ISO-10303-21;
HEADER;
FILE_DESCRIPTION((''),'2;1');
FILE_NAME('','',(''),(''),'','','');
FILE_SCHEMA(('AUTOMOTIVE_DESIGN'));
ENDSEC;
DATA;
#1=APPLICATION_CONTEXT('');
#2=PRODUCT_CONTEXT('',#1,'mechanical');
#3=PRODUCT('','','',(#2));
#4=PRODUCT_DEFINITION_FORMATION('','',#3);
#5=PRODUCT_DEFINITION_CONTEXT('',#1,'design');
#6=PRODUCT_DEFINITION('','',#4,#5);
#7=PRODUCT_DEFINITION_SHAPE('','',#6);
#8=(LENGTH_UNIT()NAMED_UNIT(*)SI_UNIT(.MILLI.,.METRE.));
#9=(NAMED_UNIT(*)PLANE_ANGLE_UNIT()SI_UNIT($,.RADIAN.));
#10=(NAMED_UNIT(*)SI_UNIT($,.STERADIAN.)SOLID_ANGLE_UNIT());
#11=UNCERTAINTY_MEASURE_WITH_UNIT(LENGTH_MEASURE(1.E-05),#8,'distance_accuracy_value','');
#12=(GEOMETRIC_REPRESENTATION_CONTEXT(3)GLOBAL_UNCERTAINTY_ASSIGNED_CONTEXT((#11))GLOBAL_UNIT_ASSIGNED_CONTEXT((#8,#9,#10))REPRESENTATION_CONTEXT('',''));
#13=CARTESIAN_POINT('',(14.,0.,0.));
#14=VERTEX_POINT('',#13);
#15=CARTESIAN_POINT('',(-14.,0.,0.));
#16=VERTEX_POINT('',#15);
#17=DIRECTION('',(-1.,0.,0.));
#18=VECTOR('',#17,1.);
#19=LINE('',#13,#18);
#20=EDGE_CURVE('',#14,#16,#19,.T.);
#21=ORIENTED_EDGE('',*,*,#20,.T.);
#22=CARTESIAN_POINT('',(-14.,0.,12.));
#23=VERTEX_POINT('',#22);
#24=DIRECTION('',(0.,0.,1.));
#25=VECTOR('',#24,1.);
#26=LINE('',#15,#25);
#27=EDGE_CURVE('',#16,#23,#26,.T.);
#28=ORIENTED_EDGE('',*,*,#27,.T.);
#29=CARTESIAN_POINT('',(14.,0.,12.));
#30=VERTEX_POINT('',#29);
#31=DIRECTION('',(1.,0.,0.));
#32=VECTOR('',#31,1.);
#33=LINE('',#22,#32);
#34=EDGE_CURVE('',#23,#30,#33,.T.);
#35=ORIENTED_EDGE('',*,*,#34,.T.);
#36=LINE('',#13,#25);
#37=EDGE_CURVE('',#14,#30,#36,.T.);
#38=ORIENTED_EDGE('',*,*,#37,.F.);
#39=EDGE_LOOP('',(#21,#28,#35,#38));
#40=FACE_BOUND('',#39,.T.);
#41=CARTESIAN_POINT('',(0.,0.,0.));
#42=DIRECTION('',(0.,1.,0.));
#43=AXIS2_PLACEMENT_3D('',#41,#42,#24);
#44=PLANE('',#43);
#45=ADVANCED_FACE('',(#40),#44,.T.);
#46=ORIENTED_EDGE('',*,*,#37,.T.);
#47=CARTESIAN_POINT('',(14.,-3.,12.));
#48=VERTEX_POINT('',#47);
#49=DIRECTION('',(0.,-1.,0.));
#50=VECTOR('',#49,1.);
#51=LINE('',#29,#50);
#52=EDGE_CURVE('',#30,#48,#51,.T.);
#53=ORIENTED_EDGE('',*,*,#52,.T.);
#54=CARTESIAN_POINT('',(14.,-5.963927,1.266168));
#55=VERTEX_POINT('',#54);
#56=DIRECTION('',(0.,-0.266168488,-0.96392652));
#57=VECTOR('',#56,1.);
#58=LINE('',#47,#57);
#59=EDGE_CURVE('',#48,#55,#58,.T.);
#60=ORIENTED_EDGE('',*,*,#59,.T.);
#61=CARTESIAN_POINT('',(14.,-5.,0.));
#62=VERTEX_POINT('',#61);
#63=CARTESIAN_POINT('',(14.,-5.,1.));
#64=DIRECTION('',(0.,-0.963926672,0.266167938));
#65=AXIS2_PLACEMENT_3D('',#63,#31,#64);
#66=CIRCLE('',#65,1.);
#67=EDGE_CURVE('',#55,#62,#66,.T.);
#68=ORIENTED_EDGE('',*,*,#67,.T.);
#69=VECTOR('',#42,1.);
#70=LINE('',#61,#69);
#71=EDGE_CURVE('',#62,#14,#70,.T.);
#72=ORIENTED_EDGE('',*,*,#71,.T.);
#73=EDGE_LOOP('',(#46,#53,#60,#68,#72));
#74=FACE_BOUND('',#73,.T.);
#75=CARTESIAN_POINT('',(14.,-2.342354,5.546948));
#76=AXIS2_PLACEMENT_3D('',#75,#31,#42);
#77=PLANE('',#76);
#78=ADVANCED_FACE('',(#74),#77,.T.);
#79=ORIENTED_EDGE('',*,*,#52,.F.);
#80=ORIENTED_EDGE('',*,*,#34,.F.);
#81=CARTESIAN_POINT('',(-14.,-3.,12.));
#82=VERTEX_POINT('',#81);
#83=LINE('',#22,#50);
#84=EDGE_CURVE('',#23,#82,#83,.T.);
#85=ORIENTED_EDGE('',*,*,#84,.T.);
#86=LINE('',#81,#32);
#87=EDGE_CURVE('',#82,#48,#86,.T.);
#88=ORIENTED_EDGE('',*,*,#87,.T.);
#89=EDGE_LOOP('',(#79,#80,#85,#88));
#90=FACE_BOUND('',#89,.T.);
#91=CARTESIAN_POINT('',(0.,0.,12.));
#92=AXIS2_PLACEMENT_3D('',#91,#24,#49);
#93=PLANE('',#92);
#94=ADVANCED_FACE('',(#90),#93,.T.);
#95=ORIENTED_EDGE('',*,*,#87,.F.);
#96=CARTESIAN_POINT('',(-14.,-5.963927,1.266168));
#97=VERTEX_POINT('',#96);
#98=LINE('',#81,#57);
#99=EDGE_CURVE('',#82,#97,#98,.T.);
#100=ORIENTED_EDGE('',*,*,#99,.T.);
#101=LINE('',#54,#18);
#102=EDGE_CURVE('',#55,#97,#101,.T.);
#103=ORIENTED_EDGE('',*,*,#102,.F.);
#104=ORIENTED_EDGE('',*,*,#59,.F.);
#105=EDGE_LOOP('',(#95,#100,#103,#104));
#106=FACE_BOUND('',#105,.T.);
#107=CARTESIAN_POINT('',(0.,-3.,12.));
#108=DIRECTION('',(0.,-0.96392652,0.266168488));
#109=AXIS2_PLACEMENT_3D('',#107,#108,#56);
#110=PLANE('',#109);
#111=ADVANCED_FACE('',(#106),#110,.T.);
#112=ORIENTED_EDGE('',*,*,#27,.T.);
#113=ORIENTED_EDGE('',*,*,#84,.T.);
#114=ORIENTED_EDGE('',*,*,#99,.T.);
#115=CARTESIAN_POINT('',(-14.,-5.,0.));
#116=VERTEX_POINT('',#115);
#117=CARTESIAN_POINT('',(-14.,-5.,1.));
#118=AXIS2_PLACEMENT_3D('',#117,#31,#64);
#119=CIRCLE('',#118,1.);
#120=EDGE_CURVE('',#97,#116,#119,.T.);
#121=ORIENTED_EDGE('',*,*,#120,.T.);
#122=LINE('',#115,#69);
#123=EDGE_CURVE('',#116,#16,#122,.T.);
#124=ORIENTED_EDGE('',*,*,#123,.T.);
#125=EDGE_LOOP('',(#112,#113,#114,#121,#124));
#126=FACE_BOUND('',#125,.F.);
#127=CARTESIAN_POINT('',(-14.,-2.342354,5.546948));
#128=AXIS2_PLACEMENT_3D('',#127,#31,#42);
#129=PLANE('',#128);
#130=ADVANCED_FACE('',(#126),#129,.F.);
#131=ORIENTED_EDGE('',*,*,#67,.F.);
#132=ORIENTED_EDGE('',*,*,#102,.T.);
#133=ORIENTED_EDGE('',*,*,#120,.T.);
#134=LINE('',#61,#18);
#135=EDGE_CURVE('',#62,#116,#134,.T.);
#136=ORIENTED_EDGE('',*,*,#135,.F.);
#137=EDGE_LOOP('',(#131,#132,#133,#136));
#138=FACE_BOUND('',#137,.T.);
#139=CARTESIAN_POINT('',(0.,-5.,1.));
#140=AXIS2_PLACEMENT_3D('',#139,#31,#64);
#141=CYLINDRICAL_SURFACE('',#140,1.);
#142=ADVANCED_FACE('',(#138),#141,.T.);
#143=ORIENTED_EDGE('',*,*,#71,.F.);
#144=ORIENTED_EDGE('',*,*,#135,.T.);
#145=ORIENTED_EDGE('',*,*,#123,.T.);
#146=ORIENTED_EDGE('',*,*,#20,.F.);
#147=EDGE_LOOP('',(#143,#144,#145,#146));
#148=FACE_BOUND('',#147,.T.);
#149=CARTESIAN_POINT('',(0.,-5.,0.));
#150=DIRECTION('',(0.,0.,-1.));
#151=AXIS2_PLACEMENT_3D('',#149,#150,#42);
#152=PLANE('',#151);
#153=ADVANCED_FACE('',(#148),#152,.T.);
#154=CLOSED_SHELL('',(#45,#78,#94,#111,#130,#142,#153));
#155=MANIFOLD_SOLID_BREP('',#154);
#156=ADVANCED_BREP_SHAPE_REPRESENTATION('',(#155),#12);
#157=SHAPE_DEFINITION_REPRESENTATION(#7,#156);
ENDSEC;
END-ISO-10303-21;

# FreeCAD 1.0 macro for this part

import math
import FreeCAD as App
import Part
import Sketcher
from FreeCAD import Vector
Q = App.Units.Quantity

doc = App.newDocument("Part")
body = doc.addObject("PartDesign::Body", "Body")

# Sketch on YZ plane
sketch1 = doc.addObject("Sketcher::SketchObject", "Sketch")
body.addObject(sketch1)
sketch1.AttachmentSupport = (doc.YZ_Plane, [""])
sketch1.MapMode = "FlatFace"
sketch1.addGeometry([
    Part.LineSegment(Vector(0, 0, 0), Vector(0, 12, 0)),  # 0
    Part.LineSegment(Vector(0, 12, 0), Vector(-3, 12, 0)),  # 1
    Part.LineSegment(Vector(-3, 12, 0), Vector(-6, 1.3, 0)),  # 2
    Part.ArcOfCircle(Part.Circle(Vector(-5, 1, 0), Vector(0, 0, 1), 1), math.radians(165), math.radians(270)),  # 3
    Part.LineSegment(Vector(-5, 0, 0), Vector(0, 0, 0)),  # 4
], False)
sketch1.addConstraint([
    Sketcher.Constraint("Coincident", 0, 2, 1, 1),
    Sketcher.Constraint("Coincident", 1, 2, 2, 1),
    Sketcher.Constraint("Tangent", 2, 2, 3, 1),
    Sketcher.Constraint("Tangent", 3, 2, 4, 1),
    Sketcher.Constraint("Coincident", 4, 2, 0, 1),
    Sketcher.Constraint("Vertical", 0),
    Sketcher.Constraint("Horizontal", 1),
    Sketcher.Constraint("Horizontal", 4),
    Sketcher.Constraint("Coincident", 4, 2, -1, 1),
    Sketcher.Constraint("Radius", 3, Q("1 mm")),
    Sketcher.Constraint("DistanceX", 1, 2, 1, 1, Q("3 mm")),
    Sketcher.Constraint("DistanceX", 4, 1, 4, 2, Q("5 mm")),
    Sketcher.Constraint("DistanceY", 0, 1, 0, 2, Q("12 mm")),
])
pad1 = doc.addObject("PartDesign::Pad", "Pad")
body.addObject(pad1)
pad1.Profile = sketch1
pad1.Length = 28
pad1.Midplane = True

doc.recompute()
